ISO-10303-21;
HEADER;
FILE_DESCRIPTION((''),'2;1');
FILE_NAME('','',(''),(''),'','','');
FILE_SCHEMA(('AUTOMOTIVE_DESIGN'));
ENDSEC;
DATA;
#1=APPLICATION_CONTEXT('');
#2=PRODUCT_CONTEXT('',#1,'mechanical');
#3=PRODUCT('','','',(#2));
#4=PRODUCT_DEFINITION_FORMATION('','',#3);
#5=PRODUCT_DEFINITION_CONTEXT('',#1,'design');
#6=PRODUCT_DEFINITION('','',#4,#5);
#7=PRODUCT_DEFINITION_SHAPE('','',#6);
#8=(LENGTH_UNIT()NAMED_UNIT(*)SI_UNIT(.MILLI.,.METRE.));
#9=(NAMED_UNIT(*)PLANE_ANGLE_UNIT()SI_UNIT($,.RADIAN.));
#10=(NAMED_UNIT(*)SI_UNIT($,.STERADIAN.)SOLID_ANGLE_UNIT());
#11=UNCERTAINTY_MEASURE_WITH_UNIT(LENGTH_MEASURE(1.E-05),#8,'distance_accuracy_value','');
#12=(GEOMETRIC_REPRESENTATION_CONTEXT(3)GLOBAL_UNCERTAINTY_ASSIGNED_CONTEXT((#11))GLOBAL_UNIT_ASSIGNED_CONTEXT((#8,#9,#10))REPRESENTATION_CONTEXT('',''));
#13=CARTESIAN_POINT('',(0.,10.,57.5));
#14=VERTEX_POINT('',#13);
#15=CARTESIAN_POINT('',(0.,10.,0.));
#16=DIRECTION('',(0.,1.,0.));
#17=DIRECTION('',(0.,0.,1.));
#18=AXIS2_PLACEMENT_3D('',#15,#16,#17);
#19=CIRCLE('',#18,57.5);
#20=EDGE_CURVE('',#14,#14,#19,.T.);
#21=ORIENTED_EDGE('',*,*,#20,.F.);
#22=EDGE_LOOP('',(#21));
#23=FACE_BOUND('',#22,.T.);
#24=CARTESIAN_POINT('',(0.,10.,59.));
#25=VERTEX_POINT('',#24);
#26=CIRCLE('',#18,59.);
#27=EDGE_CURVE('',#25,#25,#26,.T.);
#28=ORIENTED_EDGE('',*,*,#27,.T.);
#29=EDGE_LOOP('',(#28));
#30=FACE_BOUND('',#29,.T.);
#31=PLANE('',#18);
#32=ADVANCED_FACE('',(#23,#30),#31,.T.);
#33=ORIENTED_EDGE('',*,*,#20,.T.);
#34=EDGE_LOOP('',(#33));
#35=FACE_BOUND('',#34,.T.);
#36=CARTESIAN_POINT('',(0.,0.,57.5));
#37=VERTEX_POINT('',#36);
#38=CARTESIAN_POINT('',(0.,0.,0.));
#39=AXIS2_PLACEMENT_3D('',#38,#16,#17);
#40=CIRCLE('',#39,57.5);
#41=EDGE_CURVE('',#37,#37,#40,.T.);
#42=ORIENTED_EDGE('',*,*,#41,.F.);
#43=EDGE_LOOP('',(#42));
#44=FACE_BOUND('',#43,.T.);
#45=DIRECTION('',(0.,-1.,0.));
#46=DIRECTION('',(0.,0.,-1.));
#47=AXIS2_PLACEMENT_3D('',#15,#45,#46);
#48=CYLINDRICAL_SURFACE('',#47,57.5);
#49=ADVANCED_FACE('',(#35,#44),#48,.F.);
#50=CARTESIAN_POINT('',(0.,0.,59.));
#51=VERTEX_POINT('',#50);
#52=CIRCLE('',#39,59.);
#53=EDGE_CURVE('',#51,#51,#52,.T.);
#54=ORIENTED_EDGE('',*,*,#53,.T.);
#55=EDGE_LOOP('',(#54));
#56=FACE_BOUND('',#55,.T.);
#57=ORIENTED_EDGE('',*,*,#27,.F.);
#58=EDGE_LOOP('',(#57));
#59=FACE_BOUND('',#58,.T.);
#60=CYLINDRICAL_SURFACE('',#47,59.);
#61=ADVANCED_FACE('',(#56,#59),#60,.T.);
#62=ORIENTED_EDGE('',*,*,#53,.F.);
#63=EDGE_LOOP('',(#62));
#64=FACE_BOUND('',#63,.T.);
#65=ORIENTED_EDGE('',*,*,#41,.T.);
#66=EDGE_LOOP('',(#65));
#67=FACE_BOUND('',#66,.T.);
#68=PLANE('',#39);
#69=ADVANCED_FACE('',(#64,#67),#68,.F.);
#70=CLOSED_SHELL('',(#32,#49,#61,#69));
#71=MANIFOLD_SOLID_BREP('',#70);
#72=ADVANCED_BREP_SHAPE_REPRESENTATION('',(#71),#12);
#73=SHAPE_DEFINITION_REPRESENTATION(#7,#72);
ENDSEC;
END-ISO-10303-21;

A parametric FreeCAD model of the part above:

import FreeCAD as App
import Part
import Sketcher

doc = App.newDocument("Part")
params = doc.addObject("Spreadsheet::Sheet", "Params")
for row, (alias, value) in enumerate([
    ("sketch1_diameter", "118 mm"),
    ("sketch1_diameter2", "115 mm"),
    ("pad1_length", "10 mm"),
], start=1):
    params.set(f"A{row}", alias)
    params.set(f"B{row}", "=" + value)
    params.setAlias(f"B{row}", alias)

body = doc.addObject("PartDesign::Body", "Body")

sketch1 = body.newObject("Sketcher::SketchObject", "Sketch")
sketch1.AttachmentSupport = (doc.getObject("XZ_Plane"), [""])
sketch1.MapMode = "FlatFace"
sketch1.addGeometry(Part.Circle(App.Vector(0, 0, 0), App.Vector(0, 0, 1), 59), False)
sketch1.addGeometry(Part.Circle(App.Vector(0, 0, 0), App.Vector(0, 0, 1), 58), False)
sketch1.addConstraint(Sketcher.Constraint("Coincident", 0, 3, -1, 1))
sketch1.addConstraint(Sketcher.Constraint("Coincident", 1, 3, -1, 1))
sketch1.addConstraint(Sketcher.Constraint("Diameter", 0, 118.0))
sketch1.addConstraint(Sketcher.Constraint("Diameter", 1, 115.0))
sketch1.setExpression("Constraints[2]", "Params.sketch1_diameter")
sketch1.setExpression("Constraints[3]", "Params.sketch1_diameter2")
pad1 = body.newObject("PartDesign::Pad", "Pad")
pad1.Profile = sketch1
pad1.setExpression("Length", "Params.pad1_length")
pad1.Reversed = True

doc.recompute()
